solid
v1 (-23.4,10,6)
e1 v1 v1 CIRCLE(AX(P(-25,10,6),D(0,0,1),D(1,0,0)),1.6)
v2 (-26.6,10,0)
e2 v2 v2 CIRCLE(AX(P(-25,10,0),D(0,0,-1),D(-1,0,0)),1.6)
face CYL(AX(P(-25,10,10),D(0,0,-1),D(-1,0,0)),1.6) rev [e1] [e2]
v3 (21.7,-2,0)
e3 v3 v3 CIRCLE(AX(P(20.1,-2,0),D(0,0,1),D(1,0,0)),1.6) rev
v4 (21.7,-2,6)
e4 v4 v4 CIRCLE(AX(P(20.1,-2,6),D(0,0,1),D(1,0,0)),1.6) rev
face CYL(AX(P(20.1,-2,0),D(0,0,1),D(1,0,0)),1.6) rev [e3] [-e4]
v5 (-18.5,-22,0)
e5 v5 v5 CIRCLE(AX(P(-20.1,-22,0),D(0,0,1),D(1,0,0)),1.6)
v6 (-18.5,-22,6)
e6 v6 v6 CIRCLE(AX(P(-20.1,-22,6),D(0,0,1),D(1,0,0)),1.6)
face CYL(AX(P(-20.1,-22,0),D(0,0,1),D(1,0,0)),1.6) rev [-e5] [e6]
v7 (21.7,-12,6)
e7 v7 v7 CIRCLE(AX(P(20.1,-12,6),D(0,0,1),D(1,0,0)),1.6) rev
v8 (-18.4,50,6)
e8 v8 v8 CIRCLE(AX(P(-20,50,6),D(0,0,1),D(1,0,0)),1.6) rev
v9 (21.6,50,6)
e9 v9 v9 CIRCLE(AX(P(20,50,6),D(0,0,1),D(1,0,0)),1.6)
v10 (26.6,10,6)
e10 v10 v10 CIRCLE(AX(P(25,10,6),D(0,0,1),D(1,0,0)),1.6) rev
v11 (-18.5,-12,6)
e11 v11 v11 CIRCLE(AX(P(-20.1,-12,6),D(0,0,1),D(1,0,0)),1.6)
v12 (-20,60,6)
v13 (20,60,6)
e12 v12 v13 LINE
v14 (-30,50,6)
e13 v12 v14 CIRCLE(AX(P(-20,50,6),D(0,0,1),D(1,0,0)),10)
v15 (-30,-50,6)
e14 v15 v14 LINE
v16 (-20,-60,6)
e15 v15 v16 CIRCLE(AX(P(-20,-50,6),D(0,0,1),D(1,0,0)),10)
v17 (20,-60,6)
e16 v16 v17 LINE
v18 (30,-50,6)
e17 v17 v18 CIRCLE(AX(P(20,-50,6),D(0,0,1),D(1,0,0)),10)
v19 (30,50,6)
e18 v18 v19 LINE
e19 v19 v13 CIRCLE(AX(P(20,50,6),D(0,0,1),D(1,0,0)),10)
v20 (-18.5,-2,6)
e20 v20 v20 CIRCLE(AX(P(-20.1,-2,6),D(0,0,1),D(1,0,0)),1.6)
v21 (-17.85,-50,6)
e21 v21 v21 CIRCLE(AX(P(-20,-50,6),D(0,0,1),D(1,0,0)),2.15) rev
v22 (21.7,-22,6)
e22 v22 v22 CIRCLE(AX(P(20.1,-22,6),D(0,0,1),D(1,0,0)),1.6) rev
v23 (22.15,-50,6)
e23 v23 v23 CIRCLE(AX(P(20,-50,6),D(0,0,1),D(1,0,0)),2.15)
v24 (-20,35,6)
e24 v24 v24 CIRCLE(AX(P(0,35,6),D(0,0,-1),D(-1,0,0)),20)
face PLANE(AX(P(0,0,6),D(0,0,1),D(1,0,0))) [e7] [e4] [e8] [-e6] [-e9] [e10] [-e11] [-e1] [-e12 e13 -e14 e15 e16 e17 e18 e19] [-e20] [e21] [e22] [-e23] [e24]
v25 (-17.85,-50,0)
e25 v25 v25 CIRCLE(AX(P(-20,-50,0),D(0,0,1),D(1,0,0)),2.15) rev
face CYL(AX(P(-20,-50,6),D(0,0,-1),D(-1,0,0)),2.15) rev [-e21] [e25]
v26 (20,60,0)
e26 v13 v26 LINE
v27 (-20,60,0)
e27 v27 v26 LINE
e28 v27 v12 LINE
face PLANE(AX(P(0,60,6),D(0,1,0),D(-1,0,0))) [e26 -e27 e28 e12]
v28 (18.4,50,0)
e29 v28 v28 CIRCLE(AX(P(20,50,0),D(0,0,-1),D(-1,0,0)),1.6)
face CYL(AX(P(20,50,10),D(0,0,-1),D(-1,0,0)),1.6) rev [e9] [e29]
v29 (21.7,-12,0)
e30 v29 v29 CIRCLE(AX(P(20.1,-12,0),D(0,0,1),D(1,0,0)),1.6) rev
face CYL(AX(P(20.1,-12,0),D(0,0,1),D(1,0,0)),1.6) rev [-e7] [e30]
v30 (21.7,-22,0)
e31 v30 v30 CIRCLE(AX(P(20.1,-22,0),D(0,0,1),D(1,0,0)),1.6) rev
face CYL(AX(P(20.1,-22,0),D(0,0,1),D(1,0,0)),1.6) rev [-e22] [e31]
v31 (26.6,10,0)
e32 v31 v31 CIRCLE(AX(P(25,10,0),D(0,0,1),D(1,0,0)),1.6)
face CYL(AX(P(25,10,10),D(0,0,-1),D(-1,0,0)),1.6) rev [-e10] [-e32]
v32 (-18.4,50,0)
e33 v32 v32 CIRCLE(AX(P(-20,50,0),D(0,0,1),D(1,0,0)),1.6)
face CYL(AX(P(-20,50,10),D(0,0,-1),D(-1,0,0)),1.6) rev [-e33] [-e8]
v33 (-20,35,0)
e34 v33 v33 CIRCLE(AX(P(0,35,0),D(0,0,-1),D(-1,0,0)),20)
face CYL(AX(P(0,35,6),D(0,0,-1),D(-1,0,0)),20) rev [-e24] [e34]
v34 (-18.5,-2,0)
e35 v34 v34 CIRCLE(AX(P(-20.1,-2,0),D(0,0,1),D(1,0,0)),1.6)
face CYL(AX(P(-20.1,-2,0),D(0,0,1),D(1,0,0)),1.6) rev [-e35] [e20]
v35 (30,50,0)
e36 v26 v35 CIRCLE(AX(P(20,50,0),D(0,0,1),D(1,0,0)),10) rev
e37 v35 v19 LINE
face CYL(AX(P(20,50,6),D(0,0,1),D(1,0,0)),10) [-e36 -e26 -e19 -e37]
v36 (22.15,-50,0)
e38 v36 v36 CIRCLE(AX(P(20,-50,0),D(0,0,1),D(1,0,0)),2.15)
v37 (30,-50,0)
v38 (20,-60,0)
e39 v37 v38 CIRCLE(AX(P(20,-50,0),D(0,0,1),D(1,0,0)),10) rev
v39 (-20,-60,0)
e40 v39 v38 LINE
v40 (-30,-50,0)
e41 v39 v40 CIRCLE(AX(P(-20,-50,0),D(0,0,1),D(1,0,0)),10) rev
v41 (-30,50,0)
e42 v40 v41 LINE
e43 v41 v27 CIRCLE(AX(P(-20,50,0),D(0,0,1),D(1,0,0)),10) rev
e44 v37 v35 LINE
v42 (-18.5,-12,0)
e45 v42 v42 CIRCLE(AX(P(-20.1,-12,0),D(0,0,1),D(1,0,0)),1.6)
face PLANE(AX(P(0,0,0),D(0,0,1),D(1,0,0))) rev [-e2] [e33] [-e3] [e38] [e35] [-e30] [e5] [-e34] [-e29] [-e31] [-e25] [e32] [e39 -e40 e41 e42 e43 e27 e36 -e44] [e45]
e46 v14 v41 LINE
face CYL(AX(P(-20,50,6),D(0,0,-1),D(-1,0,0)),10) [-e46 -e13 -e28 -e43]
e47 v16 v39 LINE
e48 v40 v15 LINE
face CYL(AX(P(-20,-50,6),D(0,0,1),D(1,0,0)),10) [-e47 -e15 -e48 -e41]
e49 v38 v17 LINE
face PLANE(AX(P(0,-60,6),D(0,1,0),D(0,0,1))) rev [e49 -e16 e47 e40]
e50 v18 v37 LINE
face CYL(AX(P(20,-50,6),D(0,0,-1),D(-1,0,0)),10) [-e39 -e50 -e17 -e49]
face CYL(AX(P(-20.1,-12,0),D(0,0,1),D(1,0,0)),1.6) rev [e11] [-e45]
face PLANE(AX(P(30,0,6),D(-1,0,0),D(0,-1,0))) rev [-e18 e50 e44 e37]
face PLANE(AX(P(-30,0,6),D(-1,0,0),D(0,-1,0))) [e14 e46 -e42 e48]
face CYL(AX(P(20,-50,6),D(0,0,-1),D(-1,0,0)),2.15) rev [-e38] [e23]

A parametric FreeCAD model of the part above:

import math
import FreeCAD as App
import Part
import Sketcher
Q = App.Units.Quantity


def edges_at(feature, points):
    """Names of the edges that pass closest to the given points."""
    edges = feature.Shape.Edges
    near = lambda p: min(range(len(edges)), key=lambda i: edges[i].distToShape(Part.Vertex(*p))[0])
    return sorted({f"Edge{near(p) + 1}" for p in points})

doc = App.newDocument("Part")
params = doc.addObject("Spreadsheet::Sheet", "Params")
for row, (alias, value) in enumerate([
    ("sketch1_radius", "6 mm"),
    ("sketch1_diameter", "4.3 mm"),
    ("sketch1_diameter2", "3.2 mm"),
    ("sketch1_width", "60 mm"),
    ("sketch1_height", "120 mm"),
    ("pad1_length", "6 mm"),
    ("sketch2_diameter", "3.2 mm"),
    ("pocket1_length", "6 mm"),
    ("fillet_radius", "10 mm"),
    ("sketch3_diameter", "40 mm"),
    ("sketch3_radius", "6 mm"),
    ("sketch3_diameter2", "3.2 mm"),
    ("sketch3_height", "14 mm"),
    ("pocket2_length", "6 mm"),
    ("sketch4_diameter", "3.2 mm"),
    ("pocket3_length", "10 mm"),
], start=1):
    params.set(f"A{row}", alias)
    params.set(f"B{row}", "=" + value)
    params.setAlias(f"B{row}", alias)

body = doc.addObject("PartDesign::Body", "Body")

# Sketch on XY plane
sketch1 = body.newObject("Sketcher::SketchObject", "Sketch")
sketch1.AttachmentSupport = (doc.getObject("XY_Plane"), [""])
sketch1.MapMode = "FlatFace"
sketch1.addGeometry(Part.LineSegment(App.Vector(-30, 60, 0), App.Vector(-30, -60, 0)), False)
sketch1.addGeometry(Part.LineSegment(App.Vector(-30, -60, 0), App.Vector(30, -60, 0)), False)
sketch1.addGeometry(Part.LineSegment(App.Vector(30, -60, 0), App.Vector(30, 60, 0)), False)
sketch1.addGeometry(Part.LineSegment(App.Vector(30, 60, 0), App.Vector(-30, 60, 0)), False)
sketch1.addGeometry(Part.Circle(App.Vector(-20, -50, 0), App.Vector(0, 0, 1), 2.1), False)
sketch1.addGeometry(Part.Circle(App.Vector(20, -50, 0), App.Vector(0, 0, 1), 2.1), False)
sketch1.addGeometry(Part.Circle(App.Vector(-13.4, 27.2, 0), App.Vector(0, 0, 1), 1.6), False)
sketch1.addGeometry(Part.Circle(App.Vector(-13.4, 42.8, 0), App.Vector(0, 0, 1), 1.6), False)
sketch1.addGeometry(Part.Circle(App.Vector(0, 19.5, 0), App.Vector(0, 0, 1), 1.6), False)
sketch1.addGeometry(Part.ArcOfCircle(Part.Circle(App.Vector(0, 42, 0), App.Vector(0, 0, 1), 6), math.radians(0), math.radians(180)), False)
sketch1.addGeometry(Part.LineSegment(App.Vector(6, 42, 0), App.Vector(6, 28, 0)), False)
sketch1.addGeometry(Part.ArcOfCircle(Part.Circle(App.Vector(0, 28, 0), App.Vector(0, 0, 1), 6), math.radians(180), math.radians(360)), False)
sketch1.addGeometry(Part.LineSegment(App.Vector(-6, 28, 0), App.Vector(-6, 42, 0)), False)
sketch1.addGeometry(Part.Circle(App.Vector(0, 50.5, 0), App.Vector(0, 0, 1), 1.6), False)
sketch1.addGeometry(Part.Circle(App.Vector(13.4, 27.2, 0), App.Vector(0, 0, 1), 1.6), False)
sketch1.addGeometry(Part.Circle(App.Vector(13.4, 42.8, 0), App.Vector(0, 0, 1), 1.6), False)
sketch1.addConstraint(Sketcher.Constraint("Coincident", 0, 2, 1, 1))
sketch1.addConstraint(Sketcher.Constraint("Coincident", 1, 2, 2, 1))
sketch1.addConstraint(Sketcher.Constraint("Coincident", 2, 2, 3, 1))
sketch1.addConstraint(Sketcher.Constraint("Coincident", 3, 2, 0, 1))
sketch1.addConstraint(Sketcher.Constraint("Tangent", 9, 1, 10, 1))
sketch1.addConstraint(Sketcher.Constraint("Tangent", 10, 2, 11, 2))
sketch1.addConstraint(Sketcher.Constraint("Tangent", 11, 1, 12, 1))
sketch1.addConstraint(Sketcher.Constraint("Tangent", 12, 2, 9, 2))
sketch1.addConstraint(Sketcher.Constraint("Vertical", 0))
sketch1.addConstraint(Sketcher.Constraint("Horizontal", 1))
sketch1.addConstraint(Sketcher.Constraint("Vertical", 2))
sketch1.addConstraint(Sketcher.Constraint("Horizontal", 3))
sketch1.addConstraint(Sketcher.Constraint("Vertical", 10))
sketch1.addConstraint(Sketcher.Constraint("Vertical", 12))
sketch1.addConstraint(Sketcher.Constraint("Equal", 4, 5))
sketch1.addConstraint(Sketcher.Constraint("Equal", 6, 7))
sketch1.addConstraint(Sketcher.Constraint("Equal", 7, 8))
sketch1.addConstraint(Sketcher.Constraint("Equal", 8, 13))
sketch1.addConstraint(Sketcher.Constraint("Equal", 13, 14))
sketch1.addConstraint(Sketcher.Constraint("Equal", 14, 15))
sketch1.addConstraint(Sketcher.Constraint("Symmetric", 0, 2, 2, 2, -1, 1))
sketch1.addConstraint(Sketcher.Constraint("Symmetric", 4, 3, 5, 3, -2))
sketch1.addConstraint(Sketcher.Constraint("Symmetric", 6, 3, 14, 3, -2))
sketch1.addConstraint(Sketcher.Constraint("Symmetric", 7, 3, 15, 3, -2))
sketch1.addConstraint(Sketcher.Constraint("PointOnObject", 8, 3, -2))
sketch1.addConstraint(Sketcher.Constraint("PointOnObject", 9, 3, -2))
sketch1.addConstraint(Sketcher.Constraint("PointOnObject", 13, 3, -2))
sketch1.addConstraint(Sketcher.Constraint("Vertical", 6, 3, 7, 3))
sketch1.addConstraint(Sketcher.Constraint("Radius", 9, Q("6 mm")))
sketch1.addConstraint(Sketcher.Constraint("Diameter", 4, Q("4.3 mm")))
sketch1.addConstraint(Sketcher.Constraint("Diameter", 6, Q("3.2 mm")))
sketch1.addConstraint(Sketcher.Constraint("DistanceX", 1, 1, 1, 2, Q("60 mm")))
sketch1.addConstraint(Sketcher.Constraint("DistanceY", 0, 2, 0, 1, Q("120 mm")))
sketch1.addConstraint(Sketcher.Constraint("DistanceY", 10, 2, 10, 1, Q("14 mm")))
sketch1.addConstraint(Sketcher.Constraint("DistanceX", 4, 3, -1, 1, Q("20 mm")))
sketch1.addConstraint(Sketcher.Constraint("DistanceY", 4, 3, -1, 1, Q("50 mm")))
sketch1.addConstraint(Sketcher.Constraint("DistanceY", -1, 1, 9, 3, Q("42 mm")))
sketch1.addConstraint(Sketcher.Constraint("DistanceY", 8, 3, 13, 3, Q("31 mm")))
sketch1.addConstraint(Sketcher.Constraint("DistanceY", -1, 1, 8, 3, Q("19.5 mm")))
sketch1.addConstraint(Sketcher.Constraint("DistanceY", 6, 3, 7, 3, Q("15.5 mm")))
sketch1.addConstraint(Sketcher.Constraint("DistanceY", -1, 1, 6, 3, Q("27.25 mm")))
sketch1.addConstraint(Sketcher.Constraint("DistanceX", 6, 3, -1, 1, Q("13.423394 mm")))
sketch1.setExpression("Constraints[28]", "Params.sketch1_radius")
sketch1.setExpression("Constraints[29]", "Params.sketch1_diameter")
sketch1.setExpression("Constraints[30]", "Params.sketch1_diameter2")
sketch1.setExpression("Constraints[31]", "Params.sketch1_width")
sketch1.setExpression("Constraints[32]", "Params.sketch1_height")
pad1 = body.newObject("PartDesign::Pad", "Pad")
pad1.Profile = sketch1
pad1.setExpression("Length", "Params.pad1_length")

# Sketch on XY plane
sketch2 = body.newObject("Sketcher::SketchObject", "Sketch001")
sketch2.AttachmentSupport = (doc.getObject("XY_Plane"), [""])
sketch2.MapMode = "FlatFace"
sketch2.AttachmentOffset = App.Placement(App.Vector(0, 0, 6), App.Rotation())
sketch2.addGeometry(Part.Circle(App.Vector(20.1, -22, 0), App.Vector(0, 0, 1), 1.6), False)
sketch2.addGeometry(Part.Circle(App.Vector(20.1, -2, 0), App.Vector(0, 0, 1), 1.6), False)
sketch2.addGeometry(Part.Circle(App.Vector(20.1, -12, 0), App.Vector(0, 0, 1), 1.6), False)
sketch2.addGeometry(Part.Circle(App.Vector(-20.1, -2, 0), App.Vector(0, 0, 1), 1.6), False)
sketch2.addGeometry(Part.Circle(App.Vector(-20.1, -12, 0), App.Vector(0, 0, 1), 1.6), False)
sketch2.addGeometry(Part.Circle(App.Vector(-20.1, -22, 0), App.Vector(0, 0, 1), 1.6), False)
sketch2.addConstraint(Sketcher.Constraint("Equal", 0, 1))
sketch2.addConstraint(Sketcher.Constraint("Equal", 1, 2))
sketch2.addConstraint(Sketcher.Constraint("Equal", 2, 3))
sketch2.addConstraint(Sketcher.Constraint("Equal", 3, 4))
sketch2.addConstraint(Sketcher.Constraint("Equal", 4, 5))
sketch2.addConstraint(Sketcher.Constraint("Symmetric", 1, 3, 3, 3, -2))
sketch2.addConstraint(Sketcher.Constraint("Symmetric", 2, 3, 4, 3, -2))
sketch2.addConstraint(Sketcher.Constraint("Symmetric", 0, 3, 5, 3, -2))
sketch2.addConstraint(Sketcher.Constraint("Vertical", 0, 3, 1, 3))
sketch2.addConstraint(Sketcher.Constraint("Vertical", 1, 3, 2, 3))
sketch2.addConstraint(Sketcher.Constraint("Diameter", 0, Q("3.2 mm")))
sketch2.addConstraint(Sketcher.Constraint("DistanceY", 0, 3, -1, 1, Q("22 mm")))
sketch2.addConstraint(Sketcher.Constraint("DistanceY", 1, 3, -1, 1, Q("2 mm")))
sketch2.addConstraint(Sketcher.Constraint("DistanceY", 2, 3, -1, 1, Q("12 mm")))
sketch2.addConstraint(Sketcher.Constraint("DistanceX", -1, 1, 0, 3, Q("20.1 mm")))
sketch2.setExpression("Constraints[10]", "Params.sketch2_diameter")
pocket1 = body.newObject("PartDesign::Pocket", "Pocket")
pocket1.Profile = sketch2
pocket1.setExpression("Length", "Params.pocket1_length")
doc.recompute()

fillet = body.newObject("PartDesign::Fillet", "Fillet")
fillet.Base = (pocket1, edges_at(pocket1, [
    (30, -60, 3),
    (-30, -60, 3),
    (-30, 60, 3),
    (30, 60, 3),
]))
fillet.setExpression("Radius", "Params.fillet_radius")

# Sketch on XY plane
sketch3 = body.newObject("Sketcher::SketchObject", "Sketch002")
sketch3.AttachmentSupport = (doc.getObject("XY_Plane"), [""])
sketch3.MapMode = "FlatFace"
sketch3.addGeometry(Part.Circle(App.Vector(0, 35, 0), App.Vector(0, 0, 1), 20), False)
sketch3.addGeometry(Part.Circle(App.Vector(13.4, 27.2, 0), App.Vector(0, 0, 1), 1.6), False)
sketch3.addGeometry(Part.Circle(App.Vector(0, 19.5, 0), App.Vector(0, 0, 1), 1.6), False)
sketch3.addGeometry(Part.Circle(App.Vector(-13.4, 27.2, 0), App.Vector(0, 0, 1), 1.6), False)
sketch3.addGeometry(Part.Circle(App.Vector(13.4, 42.8, 0), App.Vector(0, 0, 1), 1.6), False)
sketch3.addGeometry(Part.LineSegment(App.Vector(6, 28, 0), App.Vector(6, 42, 0)), False)
sketch3.addGeometry(Part.ArcOfCircle(Part.Circle(App.Vector(0, 42, 0), App.Vector(0, 0, 1), 6), math.radians(0), math.radians(180)), False)
sketch3.addGeometry(Part.LineSegment(App.Vector(-6, 42, 0), App.Vector(-6, 28, 0)), False)
sketch3.addGeometry(Part.ArcOfCircle(Part.Circle(App.Vector(0, 28, 0), App.Vector(0, 0, 1), 6), math.radians(180), math.radians(360)), False)
sketch3.addGeometry(Part.Circle(App.Vector(-13.4, 42.8, 0), App.Vector(0, 0, 1), 1.6), False)
sketch3.addGeometry(Part.Circle(App.Vector(0, 50.5, 0), App.Vector(0, 0, 1), 1.6), False)
sketch3.addConstraint(Sketcher.Constraint("Tangent", 5, 2, 6, 1))
sketch3.addConstraint(Sketcher.Constraint("Tangent", 6, 2, 7, 1))
sketch3.addConstraint(Sketcher.Constraint("Tangent", 7, 2, 8, 1))
sketch3.addConstraint(Sketcher.Constraint("Tangent", 8, 2, 5, 1))
sketch3.addConstraint(Sketcher.Constraint("Vertical", 5))
sketch3.addConstraint(Sketcher.Constraint("Vertical", 7))
sketch3.addConstraint(Sketcher.Constraint("Equal", 1, 2))
sketch3.addConstraint(Sketcher.Constraint("Equal", 2, 3))
sketch3.addConstraint(Sketcher.Constraint("Equal", 3, 4))
sketch3.addConstraint(Sketcher.Constraint("Equal", 4, 9))
sketch3.addConstraint(Sketcher.Constraint("Equal", 9, 10))
sketch3.addConstraint(Sketcher.Constraint("Symmetric", 1, 3, 3, 3, -2))
sketch3.addConstraint(Sketcher.Constraint("Symmetric", 4, 3, 9, 3, -2))
sketch3.addConstraint(Sketcher.Constraint("PointOnObject", 0, 3, -2))
sketch3.addConstraint(Sketcher.Constraint("PointOnObject", 2, 3, -2))
sketch3.addConstraint(Sketcher.Constraint("PointOnObject", 6, 3, -2))
sketch3.addConstraint(Sketcher.Constraint("PointOnObject", 10, 3, -2))
sketch3.addConstraint(Sketcher.Constraint("Vertical", 1, 3, 4, 3))
sketch3.addConstraint(Sketcher.Constraint("Diameter", 0, Q("40 mm")))
sketch3.addConstraint(Sketcher.Constraint("Radius", 6, Q("6 mm")))
sketch3.addConstraint(Sketcher.Constraint("Diameter", 1, Q("3.2 mm")))
sketch3.addConstraint(Sketcher.Constraint("DistanceY", 5, 1, 5, 2, Q("14 mm")))
sketch3.addConstraint(Sketcher.Constraint("DistanceY", -1, 1, 0, 3, Q("35 mm")))
sketch3.addConstraint(Sketcher.Constraint("DistanceY", -1, 1, 6, 3, Q("42 mm")))
sketch3.addConstraint(Sketcher.Constraint("DistanceY", -1, 1, 2, 3, Q("19.5 mm")))
sketch3.addConstraint(Sketcher.Constraint("DistanceY", -1, 1, 10, 3, Q("50.5 mm")))
sketch3.addConstraint(Sketcher.Constraint("DistanceY", 1, 3, 4, 3, Q("15.5 mm")))
sketch3.addConstraint(Sketcher.Constraint("DistanceY", -1, 1, 1, 3, Q("27.25 mm")))
sketch3.addConstraint(Sketcher.Constraint("DistanceX", -1, 1, 1, 3, Q("13.423394 mm")))
sketch3.setExpression("Constraints[18]", "Params.sketch3_diameter")
sketch3.setExpression("Constraints[19]", "Params.sketch3_radius")
sketch3.setExpression("Constraints[20]", "Params.sketch3_diameter2")
sketch3.setExpression("Constraints[21]", "Params.sketch3_height")
pocket2 = body.newObject("PartDesign::Pocket", "Pocket001")
pocket2.Profile = sketch3
pocket2.setExpression("Length", "Params.pocket2_length")
pocket2.Reversed = True

# Sketch on XY plane
sketch4 = body.newObject("Sketcher::SketchObject", "Sketch003")
sketch4.AttachmentSupport = (doc.getObject("XY_Plane"), [""])
sketch4.MapMode = "FlatFace"
sketch4.addGeometry(Part.Circle(App.Vector(20, 50, 0), App.Vector(0, 0, 1), 1.6), False)
sketch4.addGeometry(Part.Circle(App.Vector(-20, 50, 0), App.Vector(0, 0, 1), 1.6), False)
sketch4.addGeometry(Part.Circle(App.Vector(-25, 10, 0), App.Vector(0, 0, 1), 1.6), False)
sketch4.addGeometry(Part.Circle(App.Vector(25, 10, 0), App.Vector(0, 0, 1), 1.6), False)
sketch4.addConstraint(Sketcher.Constraint("Equal", 0, 1))
sketch4.addConstraint(Sketcher.Constraint("Equal", 1, 2))
sketch4.addConstraint(Sketcher.Constraint("Equal", 2, 3))
sketch4.addConstraint(Sketcher.Constraint("Symmetric", 0, 3, 1, 3, -2))
sketch4.addConstraint(Sketcher.Constraint("Symmetric", 2, 3, 3, 3, -2))
sketch4.addConstraint(Sketcher.Constraint("Diameter", 0, Q("3.2 mm")))
sketch4.addConstraint(Sketcher.Constraint("DistanceX", -1, 1, 0, 3, Q("20 mm")))
sketch4.addConstraint(Sketcher.Constraint("DistanceY", -1, 1, 0, 3, Q("50 mm")))
sketch4.addConstraint(Sketcher.Constraint("DistanceX", 2, 3, -1, 1, Q("25 mm")))
sketch4.addConstraint(Sketcher.Constraint("DistanceY", -1, 1, 2, 3, Q("10 mm")))
sketch4.setExpression("Constraints[5]", "Params.sketch4_diameter")
pocket3 = body.newObject("PartDesign::Pocket", "Pocket002")
pocket3.Profile = sketch4
pocket3.setExpression("Length", "Params.pocket3_length")
pocket3.Reversed = True

doc.recompute()
